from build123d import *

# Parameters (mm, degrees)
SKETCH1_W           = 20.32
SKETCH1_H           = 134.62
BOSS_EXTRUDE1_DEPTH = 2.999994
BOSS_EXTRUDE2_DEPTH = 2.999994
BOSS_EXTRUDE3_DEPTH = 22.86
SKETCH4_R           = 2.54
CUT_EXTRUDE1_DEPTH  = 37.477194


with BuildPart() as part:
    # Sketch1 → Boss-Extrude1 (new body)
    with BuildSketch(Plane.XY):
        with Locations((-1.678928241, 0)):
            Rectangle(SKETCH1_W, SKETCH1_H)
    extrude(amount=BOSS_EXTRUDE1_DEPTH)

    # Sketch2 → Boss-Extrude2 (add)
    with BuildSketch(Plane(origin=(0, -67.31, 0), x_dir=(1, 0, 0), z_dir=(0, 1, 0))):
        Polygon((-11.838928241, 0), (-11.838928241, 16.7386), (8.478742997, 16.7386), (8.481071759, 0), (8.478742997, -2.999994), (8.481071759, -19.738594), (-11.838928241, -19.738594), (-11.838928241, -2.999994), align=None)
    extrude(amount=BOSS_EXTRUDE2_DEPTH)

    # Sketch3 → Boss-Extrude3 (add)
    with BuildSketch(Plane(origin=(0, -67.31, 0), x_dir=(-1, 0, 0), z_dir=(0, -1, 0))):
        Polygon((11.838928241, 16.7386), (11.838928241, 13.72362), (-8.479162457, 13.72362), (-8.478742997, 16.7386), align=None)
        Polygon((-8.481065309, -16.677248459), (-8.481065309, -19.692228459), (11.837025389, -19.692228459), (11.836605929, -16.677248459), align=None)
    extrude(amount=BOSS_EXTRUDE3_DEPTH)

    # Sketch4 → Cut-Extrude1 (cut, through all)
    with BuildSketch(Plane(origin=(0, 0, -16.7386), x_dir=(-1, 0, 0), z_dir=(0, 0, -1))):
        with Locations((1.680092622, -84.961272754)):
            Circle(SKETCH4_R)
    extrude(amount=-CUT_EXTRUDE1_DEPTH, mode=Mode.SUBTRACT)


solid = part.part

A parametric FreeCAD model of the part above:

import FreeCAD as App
import Part
import Sketcher
from FreeCAD import Vector
Q = App.Units.Quantity

doc = App.newDocument("Part")
body = doc.addObject("PartDesign::Body", "Body")

sketch1 = doc.addObject("Sketcher::SketchObject", "Sketch")
body.addObject(sketch1)
sketch1.AttachmentSupport = (doc.XY_Plane, [""])
sketch1.MapMode = "FlatFace"
sketch1.addGeometry([
    Part.LineSegment(Vector(-12, 67, 0), Vector(-12, -67, 0)),
    Part.LineSegment(Vector(-12, -67, 0), Vector(8, -67, 0)),
    Part.LineSegment(Vector(8, -67, 0), Vector(8, 67, 0)),
    Part.LineSegment(Vector(8, 67, 0), Vector(-12, 67, 0)),
], False)
sketch1.addConstraint([
    Sketcher.Constraint("Coincident", 0, 2, 1, 1),
    Sketcher.Constraint("Coincident", 1, 2, 2, 1),
    Sketcher.Constraint("Coincident", 2, 2, 3, 1),
    Sketcher.Constraint("Coincident", 3, 2, 0, 1),
    Sketcher.Constraint("Vertical", 0),
    Sketcher.Constraint("Horizontal", 1),
    Sketcher.Constraint("Vertical", 2),
    Sketcher.Constraint("Horizontal", 3),
    Sketcher.Constraint("DistanceX", 1, 1, 1, 2, Q("0.8 in")),
    Sketcher.Constraint("DistanceY", 0, 2, 0, 1, Q("5.3 in")),
    Sketcher.Constraint("DistanceY", 0, 2, -1, 1, Q("2.65 in")),
    Sketcher.Constraint("DistanceX", 0, 2, -1, 1, Q("11.838928 mm")),
])
pad1 = doc.addObject("PartDesign::Pad", "Pad")
body.addObject(pad1)
pad1.Profile = sketch1
pad1.Length = 2.999994

sketch2 = doc.addObject("Sketcher::SketchObject", "Sketch001")
body.addObject(sketch2)
sketch2.AttachmentSupport = (doc.XZ_Plane, [""])
sketch2.MapMode = "FlatFace"
sketch2.AttachmentOffset = App.Placement(Vector(0, 0, 2.65 * 25.4), App.Rotation())
sketch2.addGeometry([
    Part.LineSegment(Vector(-11.8, -16.7, 0), Vector(-11.8, 19.7, 0)),
    Part.LineSegment(Vector(-11.8, 19.7, 0), Vector(8.5, 19.7, 0)),
    Part.LineSegment(Vector(8.5, 19.7, 0), Vector(8.5, 3, 0)),
    Part.LineSegment(Vector(8.5, 3, 0), Vector(8.5, 0, 0)),
    Part.LineSegment(Vector(8.5, 0, 0), Vector(8.5, -16.7, 0)),
    Part.LineSegment(Vector(8.5, -16.7, 0), Vector(-11.8, -16.7, 0)),
], False)
sketch2.addConstraint([
    Sketcher.Constraint("Coincident", 0, 2, 1, 1),
    Sketcher.Constraint("Coincident", 1, 2, 2, 1),
    Sketcher.Constraint("Coincident", 2, 2, 3, 1),
    Sketcher.Constraint("Coincident", 3, 2, 4, 1),
    Sketcher.Constraint("Coincident", 4, 2, 5, 1),
    Sketcher.Constraint("Coincident", 5, 2, 0, 1),
    Sketcher.Constraint("Vertical", 0),
    Sketcher.Constraint("Horizontal", 1),
    Sketcher.Constraint("Horizontal", 5),
    Sketcher.Constraint("PointOnObject", 3, 2, -1),
    Sketcher.Constraint("Parallel", 2, 4),
    Sketcher.Constraint("Vertical", 1, 2, 3, 2),
    Sketcher.Constraint("Equal", 2, 4),
    Sketcher.Constraint("DistanceX", 1, 1, 1, 2, Q("0.8 in")),
    Sketcher.Constraint("Distance", 2, Q("0.659 in")),
    Sketcher.Constraint("DistanceX", 5, 2, 5, 1, Q("20.317671 mm")),
    Sketcher.Constraint("DistanceY", 0, 1, 0, 2, Q("36.477194 mm")),
    Sketcher.Constraint("DistanceX", 0, 2, -1, 1, Q("11.838928 mm")),
])
pad2 = doc.addObject("PartDesign::Pad", "Pad001")
body.addObject(pad2)
pad2.Profile = sketch2
pad2.Length = 2.999994
pad2.Reversed = True

sketch3 = doc.addObject("Sketcher::SketchObject", "Sketch002")
body.addObject(sketch3)
sketch3.AttachmentSupport = (doc.XZ_Plane, [""])
sketch3.MapMode = "FlatFace"
sketch3.AttachmentOffset = App.Placement(Vector(0, 0, 2.65 * 25.4), App.Rotation())
sketch3.addGeometry([
    Part.LineSegment(Vector(-11.8, -13.7, 0), Vector(-11.8, -16.7, 0)),
    Part.LineSegment(Vector(-11.8, -16.7, 0), Vector(8.5, -16.7, 0)),
    Part.LineSegment(Vector(8.5, -16.7, 0), Vector(8.5, -13.7, 0)),
    Part.LineSegment(Vector(8.5, -13.7, 0), Vector(-11.8, -13.7, 0)),
    Part.LineSegment(Vector(8.5, 16.7, 0), Vector(8.5, 19.7, 0)),
    Part.LineSegment(Vector(8.5, 19.7, 0), Vector(-11.8, 19.7, 0)),
    Part.LineSegment(Vector(-11.8, 19.7, 0), Vector(-11.8, 16.7, 0)),
    Part.LineSegment(Vector(-11.8, 16.7, 0), Vector(8.5, 16.7, 0)),
], False)
sketch3.addConstraint([
    Sketcher.Constraint("Coincident", 0, 2, 1, 1),
    Sketcher.Constraint("Coincident", 1, 2, 2, 1),
    Sketcher.Constraint("Coincident", 2, 2, 3, 1),
    Sketcher.Constraint("Coincident", 3, 2, 0, 1),
    Sketcher.Constraint("Coincident", 4, 2, 5, 1),
    Sketcher.Constraint("Coincident", 5, 2, 6, 1),
    Sketcher.Constraint("Coincident", 6, 2, 7, 1),
    Sketcher.Constraint("Coincident", 7, 2, 4, 1),
    Sketcher.Constraint("Vertical", 0),
    Sketcher.Constraint("Horizontal", 1),
    Sketcher.Constraint("Horizontal", 3),
    Sketcher.Constraint("Vertical", 4),
    Sketcher.Constraint("Horizontal", 5),
    Sketcher.Constraint("Horizontal", 7),
    Sketcher.Constraint("Equal", 3, 5),
    Sketcher.Constraint("Equal", 1, 7),
    Sketcher.Constraint("Equal", 0, 4),
    Sketcher.Constraint("DistanceY", 0, 2, 0, 1, Q("0.1187 in")),
    Sketcher.Constraint("DistanceY", 0, 2, -1, 1, Q("0.659 in")),
    Sketcher.Constraint("DistanceX", 1, 1, 1, 2, Q("20.317671 mm")),
    Sketcher.Constraint("DistanceX", 3, 2, 3, 1, Q("20.318091 mm")),
    Sketcher.Constraint("DistanceX", 0, 2, -1, 1, Q("11.838928 mm")),
    Sketcher.Constraint("DistanceY", -1, 1, 4, 2, Q("19.692228 mm")),
    Sketcher.Constraint("DistanceX", 5, 2, 1, 2, Q("20.315768 mm")),
])
pad3 = doc.addObject("PartDesign::Pad", "Pad002")
body.addObject(pad3)
pad3.Profile = sketch3
pad3.Length = Q("0.9 in")

sketch4 = doc.addObject("Sketcher::SketchObject", "Sketch003")
body.addObject(sketch4)
sketch4.AttachmentSupport = (doc.XY_Plane, [""])
sketch4.MapMode = "FlatFace"
sketch4.AttachmentOffset = App.Placement(Vector(0, 0, -0.659 * 25.4), App.Rotation())
sketch4.addGeometry(Part.Circle(Vector(-1.7, -85, 0), Vector(0, 0, 1), 2.5), False)
sketch4.addConstraint([
    Sketcher.Constraint("Diameter", 0, Q("0.2 in")),
    Sketcher.Constraint("DistanceX", 0, 3, -1, 1, Q("1.680093 mm")),
    Sketcher.Constraint("DistanceY", 0, 3, -1, 1, Q("84.961273 mm")),
])
pocket1 = doc.addObject("PartDesign::Pocket", "Pocket")
body.addObject(pocket1)
pocket1.Profile = sketch4
pocket1.Type = "ThroughAll"
pocket1.Reversed = True

doc.recompute()
